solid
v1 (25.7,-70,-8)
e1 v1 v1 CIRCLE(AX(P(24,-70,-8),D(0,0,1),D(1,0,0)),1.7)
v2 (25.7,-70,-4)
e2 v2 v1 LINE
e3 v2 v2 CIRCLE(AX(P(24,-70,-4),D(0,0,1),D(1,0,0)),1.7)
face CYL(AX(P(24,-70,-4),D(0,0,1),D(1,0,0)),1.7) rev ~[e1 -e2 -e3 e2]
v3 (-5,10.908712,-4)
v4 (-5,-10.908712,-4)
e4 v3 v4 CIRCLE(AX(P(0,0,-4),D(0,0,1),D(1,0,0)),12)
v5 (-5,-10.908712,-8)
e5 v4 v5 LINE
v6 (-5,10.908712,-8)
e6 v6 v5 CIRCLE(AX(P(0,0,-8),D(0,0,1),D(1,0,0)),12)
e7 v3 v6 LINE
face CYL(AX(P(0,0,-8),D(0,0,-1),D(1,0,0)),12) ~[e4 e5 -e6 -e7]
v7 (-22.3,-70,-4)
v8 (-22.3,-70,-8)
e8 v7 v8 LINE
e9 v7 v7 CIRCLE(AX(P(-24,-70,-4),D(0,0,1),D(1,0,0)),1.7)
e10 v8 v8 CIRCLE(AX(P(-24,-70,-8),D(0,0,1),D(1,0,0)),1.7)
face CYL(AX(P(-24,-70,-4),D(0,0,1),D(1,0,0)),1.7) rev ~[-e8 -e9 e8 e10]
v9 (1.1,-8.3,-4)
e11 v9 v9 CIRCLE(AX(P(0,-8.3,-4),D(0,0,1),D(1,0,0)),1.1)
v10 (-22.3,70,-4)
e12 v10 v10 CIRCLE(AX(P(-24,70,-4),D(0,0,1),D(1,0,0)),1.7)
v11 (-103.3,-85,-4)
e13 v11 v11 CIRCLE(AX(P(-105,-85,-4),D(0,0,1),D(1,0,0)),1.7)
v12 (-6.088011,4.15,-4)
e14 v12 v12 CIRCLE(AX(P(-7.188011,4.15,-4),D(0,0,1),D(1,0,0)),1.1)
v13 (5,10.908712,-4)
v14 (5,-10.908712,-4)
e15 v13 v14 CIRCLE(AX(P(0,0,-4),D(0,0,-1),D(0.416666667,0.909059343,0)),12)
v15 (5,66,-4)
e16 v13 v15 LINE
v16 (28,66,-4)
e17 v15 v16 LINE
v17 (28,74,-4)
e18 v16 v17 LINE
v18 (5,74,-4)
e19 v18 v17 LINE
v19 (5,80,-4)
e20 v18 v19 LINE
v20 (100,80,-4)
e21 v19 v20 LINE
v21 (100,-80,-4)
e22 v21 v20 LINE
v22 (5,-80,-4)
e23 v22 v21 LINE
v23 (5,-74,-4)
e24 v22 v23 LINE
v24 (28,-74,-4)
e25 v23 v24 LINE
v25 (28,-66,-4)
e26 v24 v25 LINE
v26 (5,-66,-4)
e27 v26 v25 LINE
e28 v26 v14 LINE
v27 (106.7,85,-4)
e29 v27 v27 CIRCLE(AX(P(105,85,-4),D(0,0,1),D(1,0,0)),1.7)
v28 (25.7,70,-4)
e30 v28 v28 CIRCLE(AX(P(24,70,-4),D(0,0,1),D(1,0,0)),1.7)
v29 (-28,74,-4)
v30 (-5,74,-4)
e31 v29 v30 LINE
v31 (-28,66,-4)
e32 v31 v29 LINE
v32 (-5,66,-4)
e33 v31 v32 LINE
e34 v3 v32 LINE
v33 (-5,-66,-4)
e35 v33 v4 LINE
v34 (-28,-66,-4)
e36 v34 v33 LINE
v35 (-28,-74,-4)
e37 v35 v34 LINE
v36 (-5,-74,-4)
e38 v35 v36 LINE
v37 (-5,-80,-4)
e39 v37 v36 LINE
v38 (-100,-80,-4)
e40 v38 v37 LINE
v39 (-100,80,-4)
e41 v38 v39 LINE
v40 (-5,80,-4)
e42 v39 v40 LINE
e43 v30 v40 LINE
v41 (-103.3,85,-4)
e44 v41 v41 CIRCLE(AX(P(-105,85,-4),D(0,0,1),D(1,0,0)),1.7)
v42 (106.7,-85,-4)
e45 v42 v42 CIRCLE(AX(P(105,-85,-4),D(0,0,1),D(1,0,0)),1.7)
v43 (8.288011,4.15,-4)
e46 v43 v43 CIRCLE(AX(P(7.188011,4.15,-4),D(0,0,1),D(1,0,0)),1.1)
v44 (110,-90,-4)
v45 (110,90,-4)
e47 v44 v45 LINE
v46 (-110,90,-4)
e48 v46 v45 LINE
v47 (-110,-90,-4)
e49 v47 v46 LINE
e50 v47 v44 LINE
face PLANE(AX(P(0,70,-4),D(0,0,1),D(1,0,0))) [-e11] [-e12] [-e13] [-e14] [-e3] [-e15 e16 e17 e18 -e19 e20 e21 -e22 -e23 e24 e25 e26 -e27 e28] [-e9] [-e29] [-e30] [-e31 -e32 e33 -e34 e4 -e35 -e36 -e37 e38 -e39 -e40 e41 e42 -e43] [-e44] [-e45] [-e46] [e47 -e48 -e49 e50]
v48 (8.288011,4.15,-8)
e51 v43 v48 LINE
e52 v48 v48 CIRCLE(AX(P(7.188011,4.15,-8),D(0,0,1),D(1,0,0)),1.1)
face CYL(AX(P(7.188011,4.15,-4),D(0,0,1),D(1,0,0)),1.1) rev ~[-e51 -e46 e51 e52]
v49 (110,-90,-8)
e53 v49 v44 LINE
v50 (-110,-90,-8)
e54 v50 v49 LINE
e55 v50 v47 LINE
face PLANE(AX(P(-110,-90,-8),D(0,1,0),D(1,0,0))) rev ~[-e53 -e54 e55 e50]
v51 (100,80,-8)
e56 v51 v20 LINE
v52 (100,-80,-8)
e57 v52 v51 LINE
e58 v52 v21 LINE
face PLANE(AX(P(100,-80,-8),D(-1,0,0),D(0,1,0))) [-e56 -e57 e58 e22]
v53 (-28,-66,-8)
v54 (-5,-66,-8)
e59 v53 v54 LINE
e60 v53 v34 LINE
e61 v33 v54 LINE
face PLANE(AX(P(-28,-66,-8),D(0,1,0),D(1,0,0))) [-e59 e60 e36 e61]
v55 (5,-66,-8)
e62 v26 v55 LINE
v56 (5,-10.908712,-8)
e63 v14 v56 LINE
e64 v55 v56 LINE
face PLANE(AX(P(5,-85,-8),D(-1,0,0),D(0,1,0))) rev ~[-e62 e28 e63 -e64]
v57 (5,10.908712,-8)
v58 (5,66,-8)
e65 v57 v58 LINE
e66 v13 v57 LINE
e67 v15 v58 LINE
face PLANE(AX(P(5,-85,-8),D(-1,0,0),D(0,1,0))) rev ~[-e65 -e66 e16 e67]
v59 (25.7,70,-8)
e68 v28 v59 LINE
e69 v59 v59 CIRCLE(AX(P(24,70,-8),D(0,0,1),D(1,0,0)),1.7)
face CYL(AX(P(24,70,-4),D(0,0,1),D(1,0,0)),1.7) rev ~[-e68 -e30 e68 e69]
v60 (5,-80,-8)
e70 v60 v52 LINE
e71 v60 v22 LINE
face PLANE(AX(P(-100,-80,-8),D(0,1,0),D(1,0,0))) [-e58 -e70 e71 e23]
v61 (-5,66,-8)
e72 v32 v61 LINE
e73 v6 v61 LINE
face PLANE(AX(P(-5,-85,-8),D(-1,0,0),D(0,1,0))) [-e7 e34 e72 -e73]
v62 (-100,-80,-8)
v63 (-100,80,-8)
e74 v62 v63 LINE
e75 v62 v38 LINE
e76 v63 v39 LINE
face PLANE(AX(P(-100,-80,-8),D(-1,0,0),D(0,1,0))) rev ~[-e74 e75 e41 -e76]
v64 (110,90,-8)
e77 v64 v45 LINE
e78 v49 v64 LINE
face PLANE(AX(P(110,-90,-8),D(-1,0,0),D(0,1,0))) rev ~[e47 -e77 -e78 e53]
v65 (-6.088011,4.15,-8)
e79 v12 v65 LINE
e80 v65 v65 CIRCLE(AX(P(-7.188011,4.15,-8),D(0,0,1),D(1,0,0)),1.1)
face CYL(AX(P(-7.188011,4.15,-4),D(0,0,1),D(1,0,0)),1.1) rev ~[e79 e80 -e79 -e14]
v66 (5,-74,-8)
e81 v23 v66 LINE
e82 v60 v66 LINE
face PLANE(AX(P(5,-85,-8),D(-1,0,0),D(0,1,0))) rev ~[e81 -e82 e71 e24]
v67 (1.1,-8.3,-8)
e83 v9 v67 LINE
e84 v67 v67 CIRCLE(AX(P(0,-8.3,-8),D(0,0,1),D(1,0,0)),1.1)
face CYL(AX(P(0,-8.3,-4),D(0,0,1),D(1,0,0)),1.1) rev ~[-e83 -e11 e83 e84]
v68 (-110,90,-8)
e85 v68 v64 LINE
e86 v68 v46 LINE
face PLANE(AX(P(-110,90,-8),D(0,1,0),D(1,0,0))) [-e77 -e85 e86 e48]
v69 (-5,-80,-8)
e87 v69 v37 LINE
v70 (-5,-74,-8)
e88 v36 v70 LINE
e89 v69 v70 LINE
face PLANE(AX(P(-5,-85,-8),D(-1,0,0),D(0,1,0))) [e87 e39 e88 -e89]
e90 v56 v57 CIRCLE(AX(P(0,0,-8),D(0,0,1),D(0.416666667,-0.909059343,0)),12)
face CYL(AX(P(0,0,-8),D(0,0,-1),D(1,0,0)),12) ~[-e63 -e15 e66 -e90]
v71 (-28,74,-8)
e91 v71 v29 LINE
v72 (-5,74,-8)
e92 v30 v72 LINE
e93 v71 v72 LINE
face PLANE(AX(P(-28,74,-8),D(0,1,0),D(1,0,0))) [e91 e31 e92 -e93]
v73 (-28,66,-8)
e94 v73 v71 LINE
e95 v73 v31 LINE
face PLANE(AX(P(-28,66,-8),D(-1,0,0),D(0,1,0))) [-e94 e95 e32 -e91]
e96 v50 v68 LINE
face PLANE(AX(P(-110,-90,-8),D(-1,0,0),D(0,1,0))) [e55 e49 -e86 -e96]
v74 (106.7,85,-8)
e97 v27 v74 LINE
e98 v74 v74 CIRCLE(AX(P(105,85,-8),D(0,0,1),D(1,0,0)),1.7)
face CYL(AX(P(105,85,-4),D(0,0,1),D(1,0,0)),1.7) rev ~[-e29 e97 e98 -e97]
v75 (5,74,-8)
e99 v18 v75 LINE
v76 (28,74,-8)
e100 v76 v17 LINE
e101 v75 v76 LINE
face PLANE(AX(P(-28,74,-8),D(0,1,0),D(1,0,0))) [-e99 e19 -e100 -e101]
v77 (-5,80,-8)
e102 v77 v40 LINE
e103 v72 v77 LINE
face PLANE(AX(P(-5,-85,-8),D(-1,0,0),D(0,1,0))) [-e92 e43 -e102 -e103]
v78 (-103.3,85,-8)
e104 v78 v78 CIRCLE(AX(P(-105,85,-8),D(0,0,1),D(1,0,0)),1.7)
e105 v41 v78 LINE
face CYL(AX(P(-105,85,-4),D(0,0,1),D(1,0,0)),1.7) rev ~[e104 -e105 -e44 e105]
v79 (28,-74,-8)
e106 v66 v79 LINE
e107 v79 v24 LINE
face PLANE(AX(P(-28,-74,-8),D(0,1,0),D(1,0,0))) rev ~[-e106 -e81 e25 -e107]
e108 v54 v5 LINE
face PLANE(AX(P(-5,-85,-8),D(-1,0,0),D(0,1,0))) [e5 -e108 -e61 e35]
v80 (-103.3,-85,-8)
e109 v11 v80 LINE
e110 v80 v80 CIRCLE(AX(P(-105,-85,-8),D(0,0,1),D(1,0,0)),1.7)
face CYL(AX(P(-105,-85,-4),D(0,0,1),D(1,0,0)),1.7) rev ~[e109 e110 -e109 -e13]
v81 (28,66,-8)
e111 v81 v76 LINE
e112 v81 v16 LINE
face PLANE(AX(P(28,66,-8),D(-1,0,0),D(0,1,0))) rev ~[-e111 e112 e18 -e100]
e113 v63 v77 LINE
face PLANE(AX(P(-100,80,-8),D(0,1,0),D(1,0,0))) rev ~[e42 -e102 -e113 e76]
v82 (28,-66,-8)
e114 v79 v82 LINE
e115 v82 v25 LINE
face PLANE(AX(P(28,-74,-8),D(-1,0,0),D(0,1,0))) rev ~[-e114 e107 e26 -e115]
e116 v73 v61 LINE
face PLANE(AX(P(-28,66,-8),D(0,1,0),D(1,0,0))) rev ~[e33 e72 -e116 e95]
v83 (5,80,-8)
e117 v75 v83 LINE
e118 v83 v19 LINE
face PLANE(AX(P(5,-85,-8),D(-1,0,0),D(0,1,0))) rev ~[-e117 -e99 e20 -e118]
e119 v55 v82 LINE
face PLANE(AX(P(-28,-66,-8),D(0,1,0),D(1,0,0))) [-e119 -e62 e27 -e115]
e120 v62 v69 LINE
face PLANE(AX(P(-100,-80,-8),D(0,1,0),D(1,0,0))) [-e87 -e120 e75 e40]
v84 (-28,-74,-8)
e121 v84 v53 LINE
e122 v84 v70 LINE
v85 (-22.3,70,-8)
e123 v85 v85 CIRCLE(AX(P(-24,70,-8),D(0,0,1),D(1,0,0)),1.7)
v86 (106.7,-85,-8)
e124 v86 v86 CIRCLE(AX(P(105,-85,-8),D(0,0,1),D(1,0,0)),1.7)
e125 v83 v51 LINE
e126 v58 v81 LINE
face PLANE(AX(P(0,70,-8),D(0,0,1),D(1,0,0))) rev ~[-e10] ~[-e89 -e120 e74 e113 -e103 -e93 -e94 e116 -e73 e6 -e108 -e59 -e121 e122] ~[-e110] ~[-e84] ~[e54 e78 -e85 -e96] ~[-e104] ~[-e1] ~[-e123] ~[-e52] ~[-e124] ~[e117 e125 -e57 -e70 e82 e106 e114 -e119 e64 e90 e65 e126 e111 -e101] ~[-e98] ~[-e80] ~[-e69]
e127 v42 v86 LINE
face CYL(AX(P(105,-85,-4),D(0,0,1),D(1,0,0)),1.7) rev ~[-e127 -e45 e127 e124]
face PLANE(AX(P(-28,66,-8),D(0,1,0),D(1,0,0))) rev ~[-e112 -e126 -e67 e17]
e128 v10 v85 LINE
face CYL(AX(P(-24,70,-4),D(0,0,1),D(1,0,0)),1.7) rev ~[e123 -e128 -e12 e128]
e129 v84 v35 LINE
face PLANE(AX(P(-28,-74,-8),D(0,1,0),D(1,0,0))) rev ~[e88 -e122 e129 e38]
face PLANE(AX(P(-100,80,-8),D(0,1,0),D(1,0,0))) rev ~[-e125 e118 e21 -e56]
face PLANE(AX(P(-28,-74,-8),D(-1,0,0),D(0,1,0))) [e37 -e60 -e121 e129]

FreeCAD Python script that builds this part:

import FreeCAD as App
import Part
import Sketcher

doc = App.newDocument("Part")
body = doc.addObject("PartDesign::Body", "Body")

# Sketch on XY plane
sketch1 = body.newObject("Sketcher::SketchObject", "Sketch")
sketch1.AttachmentSupport = (doc.getObject("XY_Plane"), [""])
sketch1.MapMode = "FlatFace"
sketch1.AttachmentOffset = App.Placement(App.Vector(0, 0, -8), App.Rotation())
sketch1.addGeometry([
    Part.LineSegment(App.Vector(-110, 90, 0), App.Vector(-110, -90, 0)),  # 0
    Part.LineSegment(App.Vector(-110, -90, 0), App.Vector(110, -90, 0)),  # 1
    Part.LineSegment(App.Vector(110, -90, 0), App.Vector(110, 90, 0)),  # 2
    Part.LineSegment(App.Vector(110, 90, 0), App.Vector(-110, 90, 0)),  # 3
    Part.LineSegment(App.Vector(100, -80, 0), App.Vector(-100, -80, 0)),  # 4
    Part.LineSegment(App.Vector(-100, -80, 0), App.Vector(-100, 80, 0)),  # 5
    Part.LineSegment(App.Vector(-100, 80, 0), App.Vector(100, 80, 0)),  # 6
    Part.LineSegment(App.Vector(100, 80, 0), App.Vector(100, -80, 0)),  # 7
], False)
sketch1.addConstraint([
    Sketcher.Constraint("Coincident", 0, 2, 1, 1),
    Sketcher.Constraint("Coincident", 1, 2, 2, 1),
    Sketcher.Constraint("Coincident", 2, 2, 3, 1),
    Sketcher.Constraint("Coincident", 3, 2, 0, 1),
    Sketcher.Constraint("Coincident", 4, 2, 5, 1),
    Sketcher.Constraint("Coincident", 5, 2, 6, 1),
    Sketcher.Constraint("Coincident", 6, 2, 7, 1),
    Sketcher.Constraint("Coincident", 7, 2, 4, 1),
    Sketcher.Constraint("Vertical", 0),
    Sketcher.Constraint("Horizontal", 1),
    Sketcher.Constraint("Vertical", 2),
    Sketcher.Constraint("Horizontal", 3),
    Sketcher.Constraint("Horizontal", 4),
    Sketcher.Constraint("Vertical", 5),
    Sketcher.Constraint("Horizontal", 6),
    Sketcher.Constraint("Vertical", 7),
    Sketcher.Constraint("Symmetric", 0, 2, 2, 2, -1, 1),
    Sketcher.Constraint("Symmetric", 4, 2, 6, 2, -1, 1),
    Sketcher.Constraint("DistanceX", 1, 1, 1, 2, 220.0),
    Sketcher.Constraint("DistanceX", 4, 2, 4, 1, 200.0),
    Sketcher.Constraint("DistanceY", 0, 2, 0, 1, 180.0),
    Sketcher.Constraint("DistanceY", 5, 1, 5, 2, 160.0),
])
pad1 = body.newObject("PartDesign::Pad", "Pad")
pad1.Profile = sketch1
pad1.Length = 4

# Sketch on XY plane
sketch2 = body.newObject("Sketcher::SketchObject", "Sketch001")
sketch2.AttachmentSupport = (doc.getObject("XY_Plane"), [""])
sketch2.MapMode = "FlatFace"
sketch2.AttachmentOffset = App.Placement(App.Vector(0, 0, -8), App.Rotation())
sketch2.addGeometry([
    Part.LineSegment(App.Vector(-5, 85, 0), App.Vector(-5, -85, 0)),
    Part.LineSegment(App.Vector(-5, -85, 0), App.Vector(5, -85, 0)),
    Part.LineSegment(App.Vector(5, -85, 0), App.Vector(5, 85, 0)),
    Part.LineSegment(App.Vector(5, 85, 0), App.Vector(-5, 85, 0)),
], False)
sketch2.addConstraint([
    Sketcher.Constraint("Coincident", 0, 2, 1, 1),
    Sketcher.Constraint("Coincident", 1, 2, 2, 1),
    Sketcher.Constraint("Coincident", 2, 2, 3, 1),
    Sketcher.Constraint("Coincident", 3, 2, 0, 1),
    Sketcher.Constraint("Vertical", 0),
    Sketcher.Constraint("Horizontal", 1),
    Sketcher.Constraint("Vertical", 2),
    Sketcher.Constraint("Horizontal", 3),
    Sketcher.Constraint("Symmetric", 0, 2, 2, 2, -1, 1),
    Sketcher.Constraint("DistanceX", 1, 1, 1, 2, 10.0),
    Sketcher.Constraint("DistanceY", 0, 2, 0, 1, 170.0),
])
pad2 = body.newObject("PartDesign::Pad", "Pad001")
pad2.Profile = sketch2
pad2.Length = 4

# Sketch on XY plane
sketch3 = body.newObject("Sketcher::SketchObject", "Sketch002")
sketch3.AttachmentSupport = (doc.getObject("XY_Plane"), [""])
sketch3.MapMode = "FlatFace"
sketch3.AttachmentOffset = App.Placement(App.Vector(0, 0, -8), App.Rotation())
sketch3.addGeometry(Part.Circle(App.Vector(0, 0, 0), App.Vector(0, 0, 1), 12), False)
sketch3.addConstraint([
    Sketcher.Constraint("Coincident", 0, 3, -1, 1),
    Sketcher.Constraint("Diameter", 0, 24.0),
])
pad3 = body.newObject("PartDesign::Pad", "Pad002")
pad3.Profile = sketch3
pad3.Length = 4

# Sketch on XY plane
sketch4 = body.newObject("Sketcher::SketchObject", "Sketch003")
sketch4.AttachmentSupport = (doc.getObject("XY_Plane"), [""])
sketch4.MapMode = "FlatFace"
sketch4.AttachmentOffset = App.Placement(App.Vector(0, 0, -8), App.Rotation())
sketch4.addGeometry([
    Part.LineSegment(App.Vector(-28, -66, 0), App.Vector(-28, -74, 0)),
    Part.LineSegment(App.Vector(-28, -74, 0), App.Vector(28, -74, 0)),
    Part.LineSegment(App.Vector(28, -74, 0), App.Vector(28, -66, 0)),
    Part.LineSegment(App.Vector(28, -66, 0), App.Vector(-28, -66, 0)),
], False)
sketch4.addConstraint([
    Sketcher.Constraint("Coincident", 0, 2, 1, 1),
    Sketcher.Constraint("Coincident", 1, 2, 2, 1),
    Sketcher.Constraint("Coincident", 2, 2, 3, 1),
    Sketcher.Constraint("Coincident", 3, 2, 0, 1),
    Sketcher.Constraint("Vertical", 0),
    Sketcher.Constraint("Horizontal", 1),
    Sketcher.Constraint("Vertical", 2),
    Sketcher.Constraint("Horizontal", 3),
    Sketcher.Constraint("DistanceX", 1, 1, 1, 2, 56.0),
    Sketcher.Constraint("DistanceY", 0, 2, 0, 1, 8.0),
    Sketcher.Constraint("DistanceX", 0, 2, -1, 1, 28.0),
    Sketcher.Constraint("DistanceY", 0, 2, -1, 1, 74.0),
])
pad4 = body.newObject("PartDesign::Pad", "Pad003")
pad4.Profile = sketch4
pad4.Length = 4

# Sketch on XY plane
sketch5 = body.newObject("Sketcher::SketchObject", "Sketch004")
sketch5.AttachmentSupport = (doc.getObject("XY_Plane"), [""])
sketch5.MapMode = "FlatFace"
sketch5.AttachmentOffset = App.Placement(App.Vector(0, 0, -8), App.Rotation())
sketch5.addGeometry([
    Part.LineSegment(App.Vector(-28, 74, 0), App.Vector(-28, 66, 0)),
    Part.LineSegment(App.Vector(-28, 66, 0), App.Vector(28, 66, 0)),
    Part.LineSegment(App.Vector(28, 66, 0), App.Vector(28, 74, 0)),
    Part.LineSegment(App.Vector(28, 74, 0), App.Vector(-28, 74, 0)),
], False)
sketch5.addConstraint([
    Sketcher.Constraint("Coincident", 0, 2, 1, 1),
    Sketcher.Constraint("Coincident", 1, 2, 2, 1),
    Sketcher.Constraint("Coincident", 2, 2, 3, 1),
    Sketcher.Constraint("Coincident", 3, 2, 0, 1),
    Sketcher.Constraint("Vertical", 0),
    Sketcher.Constraint("Horizontal", 1),
    Sketcher.Constraint("Vertical", 2),
    Sketcher.Constraint("Horizontal", 3),
    Sketcher.Constraint("DistanceX", 1, 1, 1, 2, 56.0),
    Sketcher.Constraint("DistanceY", 0, 2, 0, 1, 8.0),
    Sketcher.Constraint("DistanceX", 0, 2, -1, 1, 28.0),
    Sketcher.Constraint("DistanceY", -1, 1, 0, 2, 66.0),
])
pad5 = body.newObject("PartDesign::Pad", "Pad004")
pad5.Profile = sketch5
pad5.Length = 4

# Sketch on XY plane
sketch6 = body.newObject("Sketcher::SketchObject", "Sketch005")
sketch6.AttachmentSupport = (doc.getObject("XY_Plane"), [""])
sketch6.MapMode = "FlatFace"
sketch6.AttachmentOffset = App.Placement(App.Vector(0, 0, -4), App.Rotation())
sketch6.addGeometry([
    Part.Circle(App.Vector(-105, -85, 0), App.Vector(0, 0, 1), 1.7),  # 0
    Part.Circle(App.Vector(-105, 85, 0), App.Vector(0, 0, 1), 1.7),  # 1
    Part.Circle(App.Vector(105, -85, 0), App.Vector(0, 0, 1), 1.7),  # 2
    Part.Circle(App.Vector(105, 85, 0), App.Vector(0, 0, 1), 1.7),  # 3
    Part.Circle(App.Vector(-24, -70, 0), App.Vector(0, 0, 1), 1.7),  # 4
    Part.Circle(App.Vector(-24, 70, 0), App.Vector(0, 0, 1), 1.7),  # 5
    Part.Circle(App.Vector(24, -70, 0), App.Vector(0, 0, 1), 1.7),  # 6
    Part.Circle(App.Vector(24, 70, 0), App.Vector(0, 0, 1), 1.7),  # 7
], False)
sketch6.addConstraint([
    Sketcher.Constraint("Equal", 0, 1),
    Sketcher.Constraint("Equal", 1, 2),
    Sketcher.Constraint("Equal", 2, 3),
    Sketcher.Constraint("Equal", 3, 4),
    Sketcher.Constraint("Equal", 4, 5),
    Sketcher.Constraint("Equal", 5, 6),
    Sketcher.Constraint("Equal", 6, 7),
    Sketcher.Constraint("Symmetric", 1, 3, 2, 3, -1, 1),
    Sketcher.Constraint("Symmetric", 0, 3, 3, 3, -1, 1),
    Sketcher.Constraint("Symmetric", 5, 3, 6, 3, -1, 1),
    Sketcher.Constraint("Symmetric", 4, 3, 7, 3, -1, 1),
    Sketcher.Constraint("Symmetric", 0, 3, 2, 3, -2),
    Sketcher.Constraint("Symmetric", 4, 3, 6, 3, -2),
    Sketcher.Constraint("Diameter", 0, 3.4),
    Sketcher.Constraint("DistanceX", 0, 3, -1, 1, 105.0),
    Sketcher.Constraint("DistanceY", 0, 3, -1, 1, 85.0),
    Sketcher.Constraint("DistanceX", 4, 3, -1, 1, 24.0),
    Sketcher.Constraint("DistanceY", 4, 3, -1, 1, 70.0),
])
pocket1 = body.newObject("PartDesign::Pocket", "Pocket")
pocket1.Profile = sketch6
pocket1.Length = 4.01

# Sketch on XY plane
sketch7 = body.newObject("Sketcher::SketchObject", "Sketch006")
sketch7.AttachmentSupport = (doc.getObject("XY_Plane"), [""])
sketch7.MapMode = "FlatFace"
sketch7.AttachmentOffset = App.Placement(App.Vector(0, 0, -4), App.Rotation())
sketch7.addGeometry([
    Part.Circle(App.Vector(7.188011, 4.15, 0), App.Vector(0, 0, 1), 1.1),
    Part.Circle(App.Vector(-7.188011, 4.15, 0), App.Vector(0, 0, 1), 1.1),
    Part.Circle(App.Vector(0, -8.3, 0), App.Vector(0, 0, 1), 1.1),
], False)
sketch7.addConstraint([
    Sketcher.Constraint("Equal", 0, 1),
    Sketcher.Constraint("Equal", 1, 2),
    Sketcher.Constraint("Symmetric", 0, 3, 1, 3, -2),
    Sketcher.Constraint("PointOnObject", 2, 3, -2),
    Sketcher.Constraint("Diameter", 0, 2.2),
    Sketcher.Constraint("DistanceY", 2, 3, -1, 1, 8.3),
    Sketcher.Constraint("DistanceY", -1, 1, 0, 3, 4.15),
    Sketcher.Constraint("DistanceX", -1, 1, 0, 3, 7.188011),
])
pocket2 = body.newObject("PartDesign::Pocket", "Pocket001")
pocket2.Profile = sketch7
pocket2.Length = 4.01

doc.recompute()
